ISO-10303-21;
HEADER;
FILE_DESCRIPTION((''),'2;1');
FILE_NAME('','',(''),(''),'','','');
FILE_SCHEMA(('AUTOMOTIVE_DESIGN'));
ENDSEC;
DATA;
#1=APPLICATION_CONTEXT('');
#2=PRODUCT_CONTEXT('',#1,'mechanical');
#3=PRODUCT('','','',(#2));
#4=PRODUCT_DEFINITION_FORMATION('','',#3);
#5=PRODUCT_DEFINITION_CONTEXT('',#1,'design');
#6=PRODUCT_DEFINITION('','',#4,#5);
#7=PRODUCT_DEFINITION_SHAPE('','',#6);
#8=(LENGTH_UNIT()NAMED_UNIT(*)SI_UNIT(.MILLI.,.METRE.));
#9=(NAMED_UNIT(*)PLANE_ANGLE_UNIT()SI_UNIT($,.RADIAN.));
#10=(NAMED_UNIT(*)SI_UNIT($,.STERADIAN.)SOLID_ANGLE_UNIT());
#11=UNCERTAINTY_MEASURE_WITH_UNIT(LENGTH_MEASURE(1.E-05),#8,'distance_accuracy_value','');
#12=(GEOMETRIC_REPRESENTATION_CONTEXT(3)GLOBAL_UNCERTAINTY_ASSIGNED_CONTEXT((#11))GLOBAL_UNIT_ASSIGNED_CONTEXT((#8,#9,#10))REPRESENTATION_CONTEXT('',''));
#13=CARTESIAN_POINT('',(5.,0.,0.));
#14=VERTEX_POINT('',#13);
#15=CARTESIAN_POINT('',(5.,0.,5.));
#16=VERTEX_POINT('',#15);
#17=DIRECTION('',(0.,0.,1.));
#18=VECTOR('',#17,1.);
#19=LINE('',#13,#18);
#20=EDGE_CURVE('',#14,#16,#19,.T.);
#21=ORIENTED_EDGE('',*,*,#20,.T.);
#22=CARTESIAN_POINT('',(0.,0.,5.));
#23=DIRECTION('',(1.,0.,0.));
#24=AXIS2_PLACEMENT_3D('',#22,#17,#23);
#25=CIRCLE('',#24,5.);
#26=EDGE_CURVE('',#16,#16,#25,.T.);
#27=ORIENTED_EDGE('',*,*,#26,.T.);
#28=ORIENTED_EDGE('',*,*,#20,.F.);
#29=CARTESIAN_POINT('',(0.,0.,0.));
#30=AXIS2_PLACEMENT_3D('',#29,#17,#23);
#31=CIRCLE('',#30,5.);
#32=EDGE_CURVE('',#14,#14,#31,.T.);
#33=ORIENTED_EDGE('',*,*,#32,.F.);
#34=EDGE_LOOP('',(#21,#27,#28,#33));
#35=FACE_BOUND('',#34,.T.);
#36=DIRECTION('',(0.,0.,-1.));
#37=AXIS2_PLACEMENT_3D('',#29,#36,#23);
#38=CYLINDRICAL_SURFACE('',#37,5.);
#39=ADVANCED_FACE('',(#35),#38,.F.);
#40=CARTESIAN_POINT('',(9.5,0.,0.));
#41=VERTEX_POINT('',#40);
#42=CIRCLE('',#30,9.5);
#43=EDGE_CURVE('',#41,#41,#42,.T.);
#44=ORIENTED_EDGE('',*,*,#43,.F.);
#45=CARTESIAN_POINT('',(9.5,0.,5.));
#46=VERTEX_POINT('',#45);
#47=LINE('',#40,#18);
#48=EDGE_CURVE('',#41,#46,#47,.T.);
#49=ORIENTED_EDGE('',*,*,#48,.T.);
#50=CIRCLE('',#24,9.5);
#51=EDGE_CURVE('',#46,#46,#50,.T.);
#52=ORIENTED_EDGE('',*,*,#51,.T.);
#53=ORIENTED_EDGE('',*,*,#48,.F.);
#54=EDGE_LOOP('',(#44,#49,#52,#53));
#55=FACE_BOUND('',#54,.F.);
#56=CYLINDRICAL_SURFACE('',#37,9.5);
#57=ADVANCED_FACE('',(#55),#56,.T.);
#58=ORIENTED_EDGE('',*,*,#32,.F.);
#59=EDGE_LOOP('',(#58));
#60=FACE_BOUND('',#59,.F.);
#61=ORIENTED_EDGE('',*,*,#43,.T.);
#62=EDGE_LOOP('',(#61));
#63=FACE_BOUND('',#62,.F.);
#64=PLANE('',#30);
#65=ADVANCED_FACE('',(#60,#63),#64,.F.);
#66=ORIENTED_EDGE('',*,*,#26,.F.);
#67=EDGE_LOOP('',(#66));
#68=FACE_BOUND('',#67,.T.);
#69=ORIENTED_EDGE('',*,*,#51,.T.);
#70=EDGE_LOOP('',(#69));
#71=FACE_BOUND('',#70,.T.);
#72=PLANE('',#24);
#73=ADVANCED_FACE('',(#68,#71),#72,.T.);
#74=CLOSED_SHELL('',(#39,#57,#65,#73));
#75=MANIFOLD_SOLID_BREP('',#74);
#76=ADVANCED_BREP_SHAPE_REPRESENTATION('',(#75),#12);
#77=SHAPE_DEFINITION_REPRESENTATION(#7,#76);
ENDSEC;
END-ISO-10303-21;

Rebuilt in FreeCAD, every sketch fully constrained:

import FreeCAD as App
import Part
import Sketcher

V = App.Vector

doc = App.newDocument("Part")
params = doc.addObject("Spreadsheet::Sheet", "Params")
for row, (alias, value) in enumerate([
    ("sketch1_diameter", "19 mm"),
    ("sketch1_diameter2", "10 mm"),
    ("pad1_length", "5 mm"),
], start=1):
    params.set(f"A{row}", alias)
    params.set(f"B{row}", "=" + value)
    params.setAlias(f"B{row}", alias)

body = doc.addObject("PartDesign::Body", "Body")

# Sketch on XY plane
sketch1 = body.newObject("Sketcher::SketchObject", "Sketch")
sketch1.AttachmentSupport = (doc.getObject("XY_Plane"), [""])
sketch1.MapMode = "FlatFace"
sketch1.addGeometry([
    Part.Circle(V(0, 0, 0), V(0, 0, 1), 10),
    Part.Circle(V(0, 0, 0), V(0, 0, 1), 5),
], False)
sketch1.addConstraint([
    Sketcher.Constraint("Coincident", 0, 3, -1, 1),
    Sketcher.Constraint("Coincident", 1, 3, -1, 1),
    Sketcher.Constraint("Diameter", 0, 19.0),
    Sketcher.Constraint("Diameter", 1, 10.0),
])
sketch1.setExpression("Constraints[2]", "Params.sketch1_diameter")
sketch1.setExpression("Constraints[3]", "Params.sketch1_diameter2")
pad1 = body.newObject("PartDesign::Pad", "Pad")
pad1.Profile = sketch1
pad1.setExpression("Length", "Params.pad1_length")

doc.recompute()
